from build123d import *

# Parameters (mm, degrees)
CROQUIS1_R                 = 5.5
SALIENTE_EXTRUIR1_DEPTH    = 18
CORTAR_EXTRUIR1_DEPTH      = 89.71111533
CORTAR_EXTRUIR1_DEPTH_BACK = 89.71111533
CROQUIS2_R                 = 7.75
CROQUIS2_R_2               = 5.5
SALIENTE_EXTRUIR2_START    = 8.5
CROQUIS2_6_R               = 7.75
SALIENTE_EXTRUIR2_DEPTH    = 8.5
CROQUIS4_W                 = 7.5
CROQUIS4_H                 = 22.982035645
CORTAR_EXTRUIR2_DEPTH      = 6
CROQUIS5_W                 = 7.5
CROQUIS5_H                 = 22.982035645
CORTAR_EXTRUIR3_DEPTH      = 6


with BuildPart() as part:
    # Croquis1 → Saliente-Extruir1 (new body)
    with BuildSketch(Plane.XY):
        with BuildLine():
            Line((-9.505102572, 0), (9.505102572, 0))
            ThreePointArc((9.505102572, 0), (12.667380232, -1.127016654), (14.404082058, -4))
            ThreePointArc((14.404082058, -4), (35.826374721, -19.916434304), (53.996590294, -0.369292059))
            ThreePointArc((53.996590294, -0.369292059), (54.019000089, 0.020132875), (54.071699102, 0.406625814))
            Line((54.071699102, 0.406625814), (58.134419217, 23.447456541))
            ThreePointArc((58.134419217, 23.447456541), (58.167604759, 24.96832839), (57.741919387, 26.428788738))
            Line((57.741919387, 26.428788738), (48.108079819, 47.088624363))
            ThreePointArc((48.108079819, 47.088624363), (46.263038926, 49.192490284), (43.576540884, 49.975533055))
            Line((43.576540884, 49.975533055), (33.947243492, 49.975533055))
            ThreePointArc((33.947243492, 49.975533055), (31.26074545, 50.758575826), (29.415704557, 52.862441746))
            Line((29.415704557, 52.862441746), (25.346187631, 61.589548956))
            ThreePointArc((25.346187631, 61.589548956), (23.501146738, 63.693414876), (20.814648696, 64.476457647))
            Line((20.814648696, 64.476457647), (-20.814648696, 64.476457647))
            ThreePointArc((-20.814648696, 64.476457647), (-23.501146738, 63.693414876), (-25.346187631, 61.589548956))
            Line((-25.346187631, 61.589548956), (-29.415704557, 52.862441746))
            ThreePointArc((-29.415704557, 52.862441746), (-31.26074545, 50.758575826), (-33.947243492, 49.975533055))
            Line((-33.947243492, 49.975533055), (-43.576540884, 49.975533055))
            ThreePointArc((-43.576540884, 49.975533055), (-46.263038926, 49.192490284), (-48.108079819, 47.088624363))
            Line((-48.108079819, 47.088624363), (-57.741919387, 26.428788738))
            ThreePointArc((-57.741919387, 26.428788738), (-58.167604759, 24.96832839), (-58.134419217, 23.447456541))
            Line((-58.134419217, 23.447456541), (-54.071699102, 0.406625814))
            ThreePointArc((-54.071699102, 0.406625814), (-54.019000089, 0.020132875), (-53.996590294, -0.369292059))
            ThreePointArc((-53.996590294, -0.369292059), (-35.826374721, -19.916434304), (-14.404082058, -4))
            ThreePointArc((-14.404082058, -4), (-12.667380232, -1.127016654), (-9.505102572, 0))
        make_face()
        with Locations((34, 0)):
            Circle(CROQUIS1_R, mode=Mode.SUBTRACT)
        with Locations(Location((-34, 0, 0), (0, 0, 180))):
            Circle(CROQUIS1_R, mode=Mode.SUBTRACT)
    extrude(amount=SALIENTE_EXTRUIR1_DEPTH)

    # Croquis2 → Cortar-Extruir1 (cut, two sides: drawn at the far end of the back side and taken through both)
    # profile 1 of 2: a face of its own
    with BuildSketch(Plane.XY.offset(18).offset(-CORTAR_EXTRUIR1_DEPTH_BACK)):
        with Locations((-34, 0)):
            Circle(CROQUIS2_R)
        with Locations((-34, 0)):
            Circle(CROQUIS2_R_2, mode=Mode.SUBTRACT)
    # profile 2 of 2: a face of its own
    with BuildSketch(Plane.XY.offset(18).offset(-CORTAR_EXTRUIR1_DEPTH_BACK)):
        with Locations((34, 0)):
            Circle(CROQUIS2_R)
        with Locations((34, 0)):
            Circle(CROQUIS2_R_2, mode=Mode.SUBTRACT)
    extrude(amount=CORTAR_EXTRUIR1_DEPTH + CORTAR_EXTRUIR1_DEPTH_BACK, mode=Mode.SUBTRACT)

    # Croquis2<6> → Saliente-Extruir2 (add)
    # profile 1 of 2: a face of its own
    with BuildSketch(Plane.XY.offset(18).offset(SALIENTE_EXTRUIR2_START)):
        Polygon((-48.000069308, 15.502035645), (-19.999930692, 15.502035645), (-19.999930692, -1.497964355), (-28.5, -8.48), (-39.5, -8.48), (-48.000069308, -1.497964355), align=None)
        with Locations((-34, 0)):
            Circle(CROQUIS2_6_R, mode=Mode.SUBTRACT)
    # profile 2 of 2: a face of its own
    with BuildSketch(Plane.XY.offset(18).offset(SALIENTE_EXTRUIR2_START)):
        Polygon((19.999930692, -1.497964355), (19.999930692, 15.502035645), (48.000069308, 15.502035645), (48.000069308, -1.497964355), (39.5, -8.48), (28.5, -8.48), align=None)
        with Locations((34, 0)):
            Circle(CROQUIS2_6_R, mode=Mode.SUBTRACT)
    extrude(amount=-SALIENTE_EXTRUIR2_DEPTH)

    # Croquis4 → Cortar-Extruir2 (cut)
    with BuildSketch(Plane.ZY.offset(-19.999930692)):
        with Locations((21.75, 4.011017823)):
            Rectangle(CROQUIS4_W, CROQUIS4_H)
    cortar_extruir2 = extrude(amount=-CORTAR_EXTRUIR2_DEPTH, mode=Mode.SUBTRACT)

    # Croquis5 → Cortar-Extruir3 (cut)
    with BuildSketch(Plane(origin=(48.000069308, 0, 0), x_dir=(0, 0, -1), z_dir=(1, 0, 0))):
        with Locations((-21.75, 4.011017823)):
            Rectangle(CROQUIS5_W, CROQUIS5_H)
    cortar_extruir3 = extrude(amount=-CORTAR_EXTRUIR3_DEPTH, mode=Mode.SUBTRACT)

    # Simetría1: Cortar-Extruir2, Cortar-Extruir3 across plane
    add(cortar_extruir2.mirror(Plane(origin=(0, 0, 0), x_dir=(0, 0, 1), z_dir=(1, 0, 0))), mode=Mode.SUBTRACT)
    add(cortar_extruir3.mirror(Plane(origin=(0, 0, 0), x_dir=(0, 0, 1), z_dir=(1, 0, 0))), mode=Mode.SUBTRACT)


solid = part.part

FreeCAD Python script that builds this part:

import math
import FreeCAD as App
import Part
import Sketcher

V = App.Vector
Q = App.Units.Quantity


def add_polygon(sketch, points):
    """Adds a closed chain of lines whose ends are joined by coincident constraints."""
    first, n = sketch.GeometryCount, len(points)
    for a, b in zip(points, points[1:] + points[:1]):
        sketch.addGeometry(Part.LineSegment(App.Vector(*a, 0), App.Vector(*b, 0)), False)
    for i in range(n):
        sketch.addConstraint(Sketcher.Constraint("Coincident", first + i, 2, first + (i + 1) % n, 1))

doc = App.newDocument("Part")
body = doc.addObject("PartDesign::Body", "Body")

sketch1 = body.newObject("Sketcher::SketchObject", "Sketch")
sketch1.AttachmentSupport = (doc.getObject("XY_Plane"), [""])
sketch1.MapMode = "FlatFace"
sketch1.addGeometry(Part.LineSegment(V(-9.505103, 0, 0), V(9.505103, 0, 0)), False)
sketch1.addGeometry(Part.ArcOfCircle(Part.Circle(V(9.505103, -5, 0), V(0, 0, 1), 5), math.radians(11.536959), math.radians(90)), False)
sketch1.addGeometry(Part.ArcOfCircle(Part.Circle(V(34, 0, 0), V(0, 0, 1), 20), math.radians(-168.463041), math.radians(-1.058004)), False)
sketch1.addGeometry(Part.ArcOfCircle(Part.Circle(V(58.995738, -0.461615, 0), V(0, 0, 1), 5), math.radians(170), math.radians(178.941996)), False)
sketch1.addGeometry(Part.LineSegment(V(54.071699, 0.406626, 0), V(58.134419, 23.447457, 0)), False)
sketch1.addGeometry(Part.ArcOfCircle(Part.Circle(V(53.21038, 24.315697, 0), V(0, 0, 1), 5), math.radians(-10), math.radians(25)), False)
sketch1.addGeometry(Part.LineSegment(V(57.741919, 26.428789, 0), V(48.10808, 47.088624, 0)), False)
sketch1.addGeometry(Part.ArcOfCircle(Part.Circle(V(43.576541, 44.975533, 0), V(0, 0, 1), 5), math.radians(25), math.radians(90)), False)
sketch1.addGeometry(Part.LineSegment(V(43.576541, 49.975533, 0), V(33.947243, 49.975533, 0)), False)
sketch1.addGeometry(Part.ArcOfCircle(Part.Circle(V(33.947243, 54.975533, 0), V(0, 0, 1), 5), math.radians(-155), math.radians(-90)), False)
sketch1.addGeometry(Part.LineSegment(V(29.415705, 52.862442, 0), V(25.346188, 61.589549, 0)), False)
sketch1.addGeometry(Part.ArcOfCircle(Part.Circle(V(20.814649, 59.476458, 0), V(0, 0, 1), 5), math.radians(25), math.radians(90)), False)
sketch1.addGeometry(Part.LineSegment(V(20.814649, 64.476458, 0), V(-20.814649, 64.476458, 0)), False)
sketch1.addGeometry(Part.ArcOfCircle(Part.Circle(V(-20.814649, 59.476458, 0), V(0, 0, 1), 5), math.radians(90), math.radians(155)), False)
sketch1.addGeometry(Part.LineSegment(V(-25.346188, 61.589549, 0), V(-29.415705, 52.862442, 0)), False)
sketch1.addGeometry(Part.ArcOfCircle(Part.Circle(V(-33.947243, 54.975533, 0), V(0, 0, 1), 5), math.radians(-90), math.radians(-25)), False)
sketch1.addGeometry(Part.LineSegment(V(-33.947243, 49.975533, 0), V(-43.576541, 49.975533, 0)), False)
sketch1.addGeometry(Part.ArcOfCircle(Part.Circle(V(-43.576541, 44.975533, 0), V(0, 0, 1), 5), math.radians(90), math.radians(155)), False)
sketch1.addGeometry(Part.LineSegment(V(-48.10808, 47.088624, 0), V(-57.741919, 26.428789, 0)), False)
sketch1.addGeometry(Part.ArcOfCircle(Part.Circle(V(-53.21038, 24.315697, 0), V(0, 0, 1), 5), math.radians(155), math.radians(190)), False)
sketch1.addGeometry(Part.LineSegment(V(-58.134419, 23.447457, 0), V(-54.071699, 0.406626, 0)), False)
sketch1.addGeometry(Part.ArcOfCircle(Part.Circle(V(-58.995738, -0.461615, 0), V(0, 0, 1), 5), math.radians(1.058004), math.radians(10)), False)
sketch1.addGeometry(Part.ArcOfCircle(Part.Circle(V(-34, 0, 0), V(0, 0, 1), 20), math.radians(-178.941996), math.radians(-11.536959)), False)
sketch1.addGeometry(Part.ArcOfCircle(Part.Circle(V(-9.505103, -5, 0), V(0, 0, 1), 5), math.radians(90), math.radians(168.463041)), False)
sketch1.addGeometry(Part.Circle(V(-34, 0, 0), V(0, 0, 1), 5.5), False)
sketch1.addGeometry(Part.Circle(V(34, 0, 0), V(0, 0, 1), 5.5), False)
sketch1.addConstraint(Sketcher.Constraint("Tangent", 0, 2, 1, 2))
sketch1.addConstraint(Sketcher.Constraint("Tangent", 1, 1, 2, 1))
sketch1.addConstraint(Sketcher.Constraint("Tangent", 2, 2, 3, 2))
sketch1.addConstraint(Sketcher.Constraint("Tangent", 3, 1, 4, 1))
sketch1.addConstraint(Sketcher.Constraint("Tangent", 4, 2, 5, 1))
sketch1.addConstraint(Sketcher.Constraint("Tangent", 5, 2, 6, 1))
sketch1.addConstraint(Sketcher.Constraint("Tangent", 6, 2, 7, 1))
sketch1.addConstraint(Sketcher.Constraint("Tangent", 7, 2, 8, 1))
sketch1.addConstraint(Sketcher.Constraint("Tangent", 8, 2, 9, 2))
sketch1.addConstraint(Sketcher.Constraint("Tangent", 9, 1, 10, 1))
sketch1.addConstraint(Sketcher.Constraint("Tangent", 10, 2, 11, 1))
sketch1.addConstraint(Sketcher.Constraint("Tangent", 11, 2, 12, 1))
sketch1.addConstraint(Sketcher.Constraint("Tangent", 12, 2, 13, 1))
sketch1.addConstraint(Sketcher.Constraint("Tangent", 13, 2, 14, 1))
sketch1.addConstraint(Sketcher.Constraint("Tangent", 14, 2, 15, 2))
sketch1.addConstraint(Sketcher.Constraint("Tangent", 15, 1, 16, 1))
sketch1.addConstraint(Sketcher.Constraint("Tangent", 16, 2, 17, 1))
sketch1.addConstraint(Sketcher.Constraint("Tangent", 17, 2, 18, 1))
sketch1.addConstraint(Sketcher.Constraint("Tangent", 18, 2, 19, 1))
sketch1.addConstraint(Sketcher.Constraint("Tangent", 19, 2, 20, 1))
sketch1.addConstraint(Sketcher.Constraint("Tangent", 20, 2, 21, 2))
sketch1.addConstraint(Sketcher.Constraint("Tangent", 21, 1, 22, 1))
sketch1.addConstraint(Sketcher.Constraint("Tangent", 22, 2, 23, 2))
sketch1.addConstraint(Sketcher.Constraint("Tangent", 23, 1, 0, 1))
sketch1.addConstraint(Sketcher.Constraint("Horizontal", 0))
sketch1.addConstraint(Sketcher.Constraint("Horizontal", 8))
sketch1.addConstraint(Sketcher.Constraint("Horizontal", 12))
sketch1.addConstraint(Sketcher.Constraint("Horizontal", 16))
sketch1.addConstraint(Sketcher.Constraint("Coincident", 24, 3, 22, 3))
sketch1.addConstraint(Sketcher.Constraint("Coincident", 25, 3, 2, 3))
sketch1.addConstraint(Sketcher.Constraint("Equal", 1, 3))
sketch1.addConstraint(Sketcher.Constraint("Equal", 3, 5))
sketch1.addConstraint(Sketcher.Constraint("Equal", 5, 7))
sketch1.addConstraint(Sketcher.Constraint("Equal", 7, 9))
sketch1.addConstraint(Sketcher.Constraint("Equal", 9, 11))
sketch1.addConstraint(Sketcher.Constraint("Equal", 11, 13))
sketch1.addConstraint(Sketcher.Constraint("Equal", 13, 15))
sketch1.addConstraint(Sketcher.Constraint("Equal", 15, 17))
sketch1.addConstraint(Sketcher.Constraint("Equal", 17, 19))
sketch1.addConstraint(Sketcher.Constraint("Equal", 19, 21))
sketch1.addConstraint(Sketcher.Constraint("Equal", 2, 22))
sketch1.addConstraint(Sketcher.Constraint("Equal", 21, 23))
sketch1.addConstraint(Sketcher.Constraint("Equal", 24, 25))
sketch1.addConstraint(Sketcher.Constraint("Symmetric", 2, 3, 22, 3, -1, 1))
sketch1.addConstraint(Sketcher.Constraint("Symmetric", 0, 2, 23, 1, -1, 1))
sketch1.addConstraint(Sketcher.Constraint("Symmetric", 9, 3, 15, 3, -2))
sketch1.addConstraint(Sketcher.Constraint("Symmetric", 5, 3, 19, 3, -2))
sketch1.addConstraint(Sketcher.Constraint("Parallel", 6, 10))
sketch1.addConstraint(Sketcher.Constraint("Parallel", 14, 18))
sketch1.addConstraint(Sketcher.Constraint("Horizontal", 3, 3, 21, 3))
sketch1.addConstraint(Sketcher.Constraint("Horizontal", 10, 2, 13, 2))
sketch1.addConstraint(Sketcher.Constraint("Diameter", 24, 11.0))
sketch1.addConstraint(Sketcher.Constraint("Radius", 1, 5.0))
sketch1.addConstraint(Sketcher.Constraint("Radius", 2, 20.0))
sketch1.addConstraint(Sketcher.Constraint("Angle", 4, Q("80 deg")))
sketch1.addConstraint(Sketcher.Constraint("Angle", 6, Q("115 deg")))
sketch1.addConstraint(Sketcher.Constraint("DistanceX", -1, 1, 2, 3, 34.0))
sketch1.addConstraint(Sketcher.Constraint("DistanceX", -1, 1, 3, 1, 54.071699))
sketch1.addConstraint(Sketcher.Constraint("DistanceX", 6, 2, 5, 3, 5.102301))
sketch1.addConstraint(Sketcher.Constraint("DistanceX", 8, 2, 8, 1, 9.629297))
sketch1.addConstraint(Sketcher.Constraint("DistanceX", 12, 2, 12, 1, 41.629297))
sketch1.addConstraint(Sketcher.Constraint("DistanceX", -1, 1, 5, 3, 53.21038))
pad1 = body.newObject("PartDesign::Pad", "Pad")
pad1.Profile = sketch1
pad1.Length = 18

sketch2 = body.newObject("Sketcher::SketchObject", "Sketch001")
sketch2.AttachmentSupport = (doc.getObject("XY_Plane"), [""])
sketch2.MapMode = "FlatFace"
sketch2.AttachmentOffset = App.Placement(V(0, 0, 18), App.Rotation())
sketch2.addGeometry(Part.Circle(V(-34, 0, 0), V(0, 0, 1), 7.75), False)
sketch2.addGeometry(Part.Circle(V(-34, 0, 0), V(0, 0, 1), 5.5), False)
sketch2.addGeometry(Part.Circle(V(34, 0, 0), V(0, 0, 1), 7.75), False)
sketch2.addGeometry(Part.Circle(V(34, 0, 0), V(0, 0, 1), 5.5), False)
sketch2.addConstraint(Sketcher.Constraint("Coincident", 1, 3, 0, 3))
sketch2.addConstraint(Sketcher.Constraint("Coincident", 3, 3, 2, 3))
sketch2.addConstraint(Sketcher.Constraint("Equal", 0, 2))
sketch2.addConstraint(Sketcher.Constraint("Equal", 1, 3))
sketch2.addConstraint(Sketcher.Constraint("Symmetric", 0, 3, 2, 3, -1, 1))
sketch2.addConstraint(Sketcher.Constraint("PointOnObject", 0, 3, -1))
sketch2.addConstraint(Sketcher.Constraint("Diameter", 1, 11.0))
sketch2.addConstraint(Sketcher.Constraint("Diameter", 0, 15.5))
sketch2.addConstraint(Sketcher.Constraint("DistanceX", 0, 3, -1, 1, 34.0))
pocket1 = body.newObject("PartDesign::Pocket", "Pocket")
pocket1.Profile = sketch2
pocket1.Type = "ThroughAll"
pocket1.Midplane = True

sketch3 = body.newObject("Sketcher::SketchObject", "Sketch002")
sketch3.AttachmentSupport = (doc.getObject("XY_Plane"), [""])
sketch3.MapMode = "FlatFace"
sketch3.AttachmentOffset = App.Placement(V(0, 0, 26.5), App.Rotation())
add_polygon(sketch3, [(-19.999931, 15.502036), (-48.000069, 15.502036), (-48.000069, -1.497964), (-39.5, -8.48), (-28.5, -8.48), (-19.999931, -1.497964)])
sketch3.addGeometry(Part.Circle(V(-34, 0, 0), V(0, 0, 1), 7.75), False)
add_polygon(sketch3, [(19.999931, 15.502036), (19.999931, -1.497964), (28.5, -8.48), (39.5, -8.48), (48.000069, -1.497964), (48.000069, 15.502036)])
sketch3.addGeometry(Part.Circle(V(34, 0, 0), V(0, 0, 1), 7.75), False)
sketch3.addConstraint(Sketcher.Constraint("Horizontal", 0))
sketch3.addConstraint(Sketcher.Constraint("Vertical", 1))
sketch3.addConstraint(Sketcher.Constraint("Horizontal", 3))
sketch3.addConstraint(Sketcher.Constraint("Vertical", 5))
sketch3.addConstraint(Sketcher.Constraint("Vertical", 7))
sketch3.addConstraint(Sketcher.Constraint("Horizontal", 9))
sketch3.addConstraint(Sketcher.Constraint("Vertical", 11))
sketch3.addConstraint(Sketcher.Constraint("Horizontal", 12))
sketch3.addConstraint(Sketcher.Constraint("Equal", 6, 13))
sketch3.addConstraint(Sketcher.Constraint("Symmetric", 6, 3, 13, 3, -1, 1))
sketch3.addConstraint(Sketcher.Constraint("Symmetric", 4, 2, 7, 2, -2))
sketch3.addConstraint(Sketcher.Constraint("Symmetric", 3, 2, 8, 2, -2))
sketch3.addConstraint(Sketcher.Constraint("Symmetric", 1, 2, 10, 2, -2))
sketch3.addConstraint(Sketcher.Constraint("PointOnObject", 6, 3, -1))
sketch3.addConstraint(Sketcher.Constraint("Parallel", 2, 8))
sketch3.addConstraint(Sketcher.Constraint("Parallel", 4, 10))
sketch3.addConstraint(Sketcher.Constraint("Horizontal", 1, 2, 4, 2))
sketch3.addConstraint(Sketcher.Constraint("Horizontal", 5, 2, 11, 2))
sketch3.addConstraint(Sketcher.Constraint("Diameter", 6, 15.5))
sketch3.addConstraint(Sketcher.Constraint("DistanceX", 3, 1, 3, 2, 11.0))
sketch3.addConstraint(Sketcher.Constraint("DistanceY", 1, 2, 1, 1, 17.0))
sketch3.addConstraint(Sketcher.Constraint("Distance", 2, 11.0))
sketch3.addConstraint(Sketcher.Constraint("DistanceX", 6, 3, -1, 1, 34.0))
sketch3.addConstraint(Sketcher.Constraint("Angle", 2, Q("-39.4 deg")))
sketch3.addConstraint(Sketcher.Constraint("DistanceX", 3, 2, 8, 2, 57.0))
sketch3.addConstraint(Sketcher.Constraint("DistanceY", 2, 2, -1, 1, 8.48))
pad2 = body.newObject("PartDesign::Pad", "Pad001")
pad2.Profile = sketch3
pad2.Length = 8.5
pad2.Reversed = True

sketch4 = body.newObject("Sketcher::SketchObject", "Sketch003")
sketch4.AttachmentSupport = (doc.getObject("YZ_Plane"), [""])
sketch4.MapMode = "FlatFace"
sketch4.AttachmentOffset = App.Placement(V(0, 0, 19.999931), App.Rotation())
add_polygon(sketch4, [(15.502036, 18), (-7.48, 18), (-7.48, 25.5), (15.502036, 25.5)])
sketch4.addConstraint(Sketcher.Constraint("Horizontal", 0))
sketch4.addConstraint(Sketcher.Constraint("Vertical", 1))
sketch4.addConstraint(Sketcher.Constraint("Horizontal", 2))
sketch4.addConstraint(Sketcher.Constraint("Vertical", 3))
sketch4.addConstraint(Sketcher.Constraint("DistanceY", 1, 1, 1, 2, 7.5))
sketch4.addConstraint(Sketcher.Constraint("DistanceY", -1, 1, 0, 2, 18.0))
sketch4.addConstraint(Sketcher.Constraint("DistanceX", 0, 2, -1, 1, 7.48))
sketch4.addConstraint(Sketcher.Constraint("DistanceX", 0, 2, 0, 1, 22.982036))
pocket2 = body.newObject("PartDesign::Pocket", "Pocket001")
pocket2.Profile = sketch4
pocket2.Length = 6
pocket2.Reversed = True

sketch5 = body.newObject("Sketcher::SketchObject", "Sketch004")
sketch5.AttachmentSupport = (doc.getObject("YZ_Plane"), [""])
sketch5.MapMode = "FlatFace"
sketch5.AttachmentOffset = App.Placement(V(0, 0, 48.000069), App.Rotation())
add_polygon(sketch5, [(15.502036, 25.5), (-7.48, 25.5), (-7.48, 18), (15.502036, 18)])
sketch5.addConstraint(Sketcher.Constraint("Horizontal", 0))
sketch5.addConstraint(Sketcher.Constraint("Vertical", 1))
sketch5.addConstraint(Sketcher.Constraint("Horizontal", 2))
sketch5.addConstraint(Sketcher.Constraint("Vertical", 3))
sketch5.addConstraint(Sketcher.Constraint("DistanceY", 1, 2, 1, 1, 7.5))
sketch5.addConstraint(Sketcher.Constraint("DistanceY", -1, 1, 1, 2, 18.0))
sketch5.addConstraint(Sketcher.Constraint("DistanceX", 0, 2, -1, 1, 7.48))
sketch5.addConstraint(Sketcher.Constraint("DistanceX", 0, 2, 0, 1, 22.982036))
pocket3 = body.newObject("PartDesign::Pocket", "Pocket002")
pocket3.Profile = sketch5
pocket3.Length = 6
doc.recompute()

mirrored = body.newObject("PartDesign::Mirrored", "Mirrored")
mirrored.Originals = [pocket2, pocket3]
mirrored.MirrorPlane = (doc.getObject("YZ_Plane"), [""])
body.Tip = mirrored

doc.recompute()
